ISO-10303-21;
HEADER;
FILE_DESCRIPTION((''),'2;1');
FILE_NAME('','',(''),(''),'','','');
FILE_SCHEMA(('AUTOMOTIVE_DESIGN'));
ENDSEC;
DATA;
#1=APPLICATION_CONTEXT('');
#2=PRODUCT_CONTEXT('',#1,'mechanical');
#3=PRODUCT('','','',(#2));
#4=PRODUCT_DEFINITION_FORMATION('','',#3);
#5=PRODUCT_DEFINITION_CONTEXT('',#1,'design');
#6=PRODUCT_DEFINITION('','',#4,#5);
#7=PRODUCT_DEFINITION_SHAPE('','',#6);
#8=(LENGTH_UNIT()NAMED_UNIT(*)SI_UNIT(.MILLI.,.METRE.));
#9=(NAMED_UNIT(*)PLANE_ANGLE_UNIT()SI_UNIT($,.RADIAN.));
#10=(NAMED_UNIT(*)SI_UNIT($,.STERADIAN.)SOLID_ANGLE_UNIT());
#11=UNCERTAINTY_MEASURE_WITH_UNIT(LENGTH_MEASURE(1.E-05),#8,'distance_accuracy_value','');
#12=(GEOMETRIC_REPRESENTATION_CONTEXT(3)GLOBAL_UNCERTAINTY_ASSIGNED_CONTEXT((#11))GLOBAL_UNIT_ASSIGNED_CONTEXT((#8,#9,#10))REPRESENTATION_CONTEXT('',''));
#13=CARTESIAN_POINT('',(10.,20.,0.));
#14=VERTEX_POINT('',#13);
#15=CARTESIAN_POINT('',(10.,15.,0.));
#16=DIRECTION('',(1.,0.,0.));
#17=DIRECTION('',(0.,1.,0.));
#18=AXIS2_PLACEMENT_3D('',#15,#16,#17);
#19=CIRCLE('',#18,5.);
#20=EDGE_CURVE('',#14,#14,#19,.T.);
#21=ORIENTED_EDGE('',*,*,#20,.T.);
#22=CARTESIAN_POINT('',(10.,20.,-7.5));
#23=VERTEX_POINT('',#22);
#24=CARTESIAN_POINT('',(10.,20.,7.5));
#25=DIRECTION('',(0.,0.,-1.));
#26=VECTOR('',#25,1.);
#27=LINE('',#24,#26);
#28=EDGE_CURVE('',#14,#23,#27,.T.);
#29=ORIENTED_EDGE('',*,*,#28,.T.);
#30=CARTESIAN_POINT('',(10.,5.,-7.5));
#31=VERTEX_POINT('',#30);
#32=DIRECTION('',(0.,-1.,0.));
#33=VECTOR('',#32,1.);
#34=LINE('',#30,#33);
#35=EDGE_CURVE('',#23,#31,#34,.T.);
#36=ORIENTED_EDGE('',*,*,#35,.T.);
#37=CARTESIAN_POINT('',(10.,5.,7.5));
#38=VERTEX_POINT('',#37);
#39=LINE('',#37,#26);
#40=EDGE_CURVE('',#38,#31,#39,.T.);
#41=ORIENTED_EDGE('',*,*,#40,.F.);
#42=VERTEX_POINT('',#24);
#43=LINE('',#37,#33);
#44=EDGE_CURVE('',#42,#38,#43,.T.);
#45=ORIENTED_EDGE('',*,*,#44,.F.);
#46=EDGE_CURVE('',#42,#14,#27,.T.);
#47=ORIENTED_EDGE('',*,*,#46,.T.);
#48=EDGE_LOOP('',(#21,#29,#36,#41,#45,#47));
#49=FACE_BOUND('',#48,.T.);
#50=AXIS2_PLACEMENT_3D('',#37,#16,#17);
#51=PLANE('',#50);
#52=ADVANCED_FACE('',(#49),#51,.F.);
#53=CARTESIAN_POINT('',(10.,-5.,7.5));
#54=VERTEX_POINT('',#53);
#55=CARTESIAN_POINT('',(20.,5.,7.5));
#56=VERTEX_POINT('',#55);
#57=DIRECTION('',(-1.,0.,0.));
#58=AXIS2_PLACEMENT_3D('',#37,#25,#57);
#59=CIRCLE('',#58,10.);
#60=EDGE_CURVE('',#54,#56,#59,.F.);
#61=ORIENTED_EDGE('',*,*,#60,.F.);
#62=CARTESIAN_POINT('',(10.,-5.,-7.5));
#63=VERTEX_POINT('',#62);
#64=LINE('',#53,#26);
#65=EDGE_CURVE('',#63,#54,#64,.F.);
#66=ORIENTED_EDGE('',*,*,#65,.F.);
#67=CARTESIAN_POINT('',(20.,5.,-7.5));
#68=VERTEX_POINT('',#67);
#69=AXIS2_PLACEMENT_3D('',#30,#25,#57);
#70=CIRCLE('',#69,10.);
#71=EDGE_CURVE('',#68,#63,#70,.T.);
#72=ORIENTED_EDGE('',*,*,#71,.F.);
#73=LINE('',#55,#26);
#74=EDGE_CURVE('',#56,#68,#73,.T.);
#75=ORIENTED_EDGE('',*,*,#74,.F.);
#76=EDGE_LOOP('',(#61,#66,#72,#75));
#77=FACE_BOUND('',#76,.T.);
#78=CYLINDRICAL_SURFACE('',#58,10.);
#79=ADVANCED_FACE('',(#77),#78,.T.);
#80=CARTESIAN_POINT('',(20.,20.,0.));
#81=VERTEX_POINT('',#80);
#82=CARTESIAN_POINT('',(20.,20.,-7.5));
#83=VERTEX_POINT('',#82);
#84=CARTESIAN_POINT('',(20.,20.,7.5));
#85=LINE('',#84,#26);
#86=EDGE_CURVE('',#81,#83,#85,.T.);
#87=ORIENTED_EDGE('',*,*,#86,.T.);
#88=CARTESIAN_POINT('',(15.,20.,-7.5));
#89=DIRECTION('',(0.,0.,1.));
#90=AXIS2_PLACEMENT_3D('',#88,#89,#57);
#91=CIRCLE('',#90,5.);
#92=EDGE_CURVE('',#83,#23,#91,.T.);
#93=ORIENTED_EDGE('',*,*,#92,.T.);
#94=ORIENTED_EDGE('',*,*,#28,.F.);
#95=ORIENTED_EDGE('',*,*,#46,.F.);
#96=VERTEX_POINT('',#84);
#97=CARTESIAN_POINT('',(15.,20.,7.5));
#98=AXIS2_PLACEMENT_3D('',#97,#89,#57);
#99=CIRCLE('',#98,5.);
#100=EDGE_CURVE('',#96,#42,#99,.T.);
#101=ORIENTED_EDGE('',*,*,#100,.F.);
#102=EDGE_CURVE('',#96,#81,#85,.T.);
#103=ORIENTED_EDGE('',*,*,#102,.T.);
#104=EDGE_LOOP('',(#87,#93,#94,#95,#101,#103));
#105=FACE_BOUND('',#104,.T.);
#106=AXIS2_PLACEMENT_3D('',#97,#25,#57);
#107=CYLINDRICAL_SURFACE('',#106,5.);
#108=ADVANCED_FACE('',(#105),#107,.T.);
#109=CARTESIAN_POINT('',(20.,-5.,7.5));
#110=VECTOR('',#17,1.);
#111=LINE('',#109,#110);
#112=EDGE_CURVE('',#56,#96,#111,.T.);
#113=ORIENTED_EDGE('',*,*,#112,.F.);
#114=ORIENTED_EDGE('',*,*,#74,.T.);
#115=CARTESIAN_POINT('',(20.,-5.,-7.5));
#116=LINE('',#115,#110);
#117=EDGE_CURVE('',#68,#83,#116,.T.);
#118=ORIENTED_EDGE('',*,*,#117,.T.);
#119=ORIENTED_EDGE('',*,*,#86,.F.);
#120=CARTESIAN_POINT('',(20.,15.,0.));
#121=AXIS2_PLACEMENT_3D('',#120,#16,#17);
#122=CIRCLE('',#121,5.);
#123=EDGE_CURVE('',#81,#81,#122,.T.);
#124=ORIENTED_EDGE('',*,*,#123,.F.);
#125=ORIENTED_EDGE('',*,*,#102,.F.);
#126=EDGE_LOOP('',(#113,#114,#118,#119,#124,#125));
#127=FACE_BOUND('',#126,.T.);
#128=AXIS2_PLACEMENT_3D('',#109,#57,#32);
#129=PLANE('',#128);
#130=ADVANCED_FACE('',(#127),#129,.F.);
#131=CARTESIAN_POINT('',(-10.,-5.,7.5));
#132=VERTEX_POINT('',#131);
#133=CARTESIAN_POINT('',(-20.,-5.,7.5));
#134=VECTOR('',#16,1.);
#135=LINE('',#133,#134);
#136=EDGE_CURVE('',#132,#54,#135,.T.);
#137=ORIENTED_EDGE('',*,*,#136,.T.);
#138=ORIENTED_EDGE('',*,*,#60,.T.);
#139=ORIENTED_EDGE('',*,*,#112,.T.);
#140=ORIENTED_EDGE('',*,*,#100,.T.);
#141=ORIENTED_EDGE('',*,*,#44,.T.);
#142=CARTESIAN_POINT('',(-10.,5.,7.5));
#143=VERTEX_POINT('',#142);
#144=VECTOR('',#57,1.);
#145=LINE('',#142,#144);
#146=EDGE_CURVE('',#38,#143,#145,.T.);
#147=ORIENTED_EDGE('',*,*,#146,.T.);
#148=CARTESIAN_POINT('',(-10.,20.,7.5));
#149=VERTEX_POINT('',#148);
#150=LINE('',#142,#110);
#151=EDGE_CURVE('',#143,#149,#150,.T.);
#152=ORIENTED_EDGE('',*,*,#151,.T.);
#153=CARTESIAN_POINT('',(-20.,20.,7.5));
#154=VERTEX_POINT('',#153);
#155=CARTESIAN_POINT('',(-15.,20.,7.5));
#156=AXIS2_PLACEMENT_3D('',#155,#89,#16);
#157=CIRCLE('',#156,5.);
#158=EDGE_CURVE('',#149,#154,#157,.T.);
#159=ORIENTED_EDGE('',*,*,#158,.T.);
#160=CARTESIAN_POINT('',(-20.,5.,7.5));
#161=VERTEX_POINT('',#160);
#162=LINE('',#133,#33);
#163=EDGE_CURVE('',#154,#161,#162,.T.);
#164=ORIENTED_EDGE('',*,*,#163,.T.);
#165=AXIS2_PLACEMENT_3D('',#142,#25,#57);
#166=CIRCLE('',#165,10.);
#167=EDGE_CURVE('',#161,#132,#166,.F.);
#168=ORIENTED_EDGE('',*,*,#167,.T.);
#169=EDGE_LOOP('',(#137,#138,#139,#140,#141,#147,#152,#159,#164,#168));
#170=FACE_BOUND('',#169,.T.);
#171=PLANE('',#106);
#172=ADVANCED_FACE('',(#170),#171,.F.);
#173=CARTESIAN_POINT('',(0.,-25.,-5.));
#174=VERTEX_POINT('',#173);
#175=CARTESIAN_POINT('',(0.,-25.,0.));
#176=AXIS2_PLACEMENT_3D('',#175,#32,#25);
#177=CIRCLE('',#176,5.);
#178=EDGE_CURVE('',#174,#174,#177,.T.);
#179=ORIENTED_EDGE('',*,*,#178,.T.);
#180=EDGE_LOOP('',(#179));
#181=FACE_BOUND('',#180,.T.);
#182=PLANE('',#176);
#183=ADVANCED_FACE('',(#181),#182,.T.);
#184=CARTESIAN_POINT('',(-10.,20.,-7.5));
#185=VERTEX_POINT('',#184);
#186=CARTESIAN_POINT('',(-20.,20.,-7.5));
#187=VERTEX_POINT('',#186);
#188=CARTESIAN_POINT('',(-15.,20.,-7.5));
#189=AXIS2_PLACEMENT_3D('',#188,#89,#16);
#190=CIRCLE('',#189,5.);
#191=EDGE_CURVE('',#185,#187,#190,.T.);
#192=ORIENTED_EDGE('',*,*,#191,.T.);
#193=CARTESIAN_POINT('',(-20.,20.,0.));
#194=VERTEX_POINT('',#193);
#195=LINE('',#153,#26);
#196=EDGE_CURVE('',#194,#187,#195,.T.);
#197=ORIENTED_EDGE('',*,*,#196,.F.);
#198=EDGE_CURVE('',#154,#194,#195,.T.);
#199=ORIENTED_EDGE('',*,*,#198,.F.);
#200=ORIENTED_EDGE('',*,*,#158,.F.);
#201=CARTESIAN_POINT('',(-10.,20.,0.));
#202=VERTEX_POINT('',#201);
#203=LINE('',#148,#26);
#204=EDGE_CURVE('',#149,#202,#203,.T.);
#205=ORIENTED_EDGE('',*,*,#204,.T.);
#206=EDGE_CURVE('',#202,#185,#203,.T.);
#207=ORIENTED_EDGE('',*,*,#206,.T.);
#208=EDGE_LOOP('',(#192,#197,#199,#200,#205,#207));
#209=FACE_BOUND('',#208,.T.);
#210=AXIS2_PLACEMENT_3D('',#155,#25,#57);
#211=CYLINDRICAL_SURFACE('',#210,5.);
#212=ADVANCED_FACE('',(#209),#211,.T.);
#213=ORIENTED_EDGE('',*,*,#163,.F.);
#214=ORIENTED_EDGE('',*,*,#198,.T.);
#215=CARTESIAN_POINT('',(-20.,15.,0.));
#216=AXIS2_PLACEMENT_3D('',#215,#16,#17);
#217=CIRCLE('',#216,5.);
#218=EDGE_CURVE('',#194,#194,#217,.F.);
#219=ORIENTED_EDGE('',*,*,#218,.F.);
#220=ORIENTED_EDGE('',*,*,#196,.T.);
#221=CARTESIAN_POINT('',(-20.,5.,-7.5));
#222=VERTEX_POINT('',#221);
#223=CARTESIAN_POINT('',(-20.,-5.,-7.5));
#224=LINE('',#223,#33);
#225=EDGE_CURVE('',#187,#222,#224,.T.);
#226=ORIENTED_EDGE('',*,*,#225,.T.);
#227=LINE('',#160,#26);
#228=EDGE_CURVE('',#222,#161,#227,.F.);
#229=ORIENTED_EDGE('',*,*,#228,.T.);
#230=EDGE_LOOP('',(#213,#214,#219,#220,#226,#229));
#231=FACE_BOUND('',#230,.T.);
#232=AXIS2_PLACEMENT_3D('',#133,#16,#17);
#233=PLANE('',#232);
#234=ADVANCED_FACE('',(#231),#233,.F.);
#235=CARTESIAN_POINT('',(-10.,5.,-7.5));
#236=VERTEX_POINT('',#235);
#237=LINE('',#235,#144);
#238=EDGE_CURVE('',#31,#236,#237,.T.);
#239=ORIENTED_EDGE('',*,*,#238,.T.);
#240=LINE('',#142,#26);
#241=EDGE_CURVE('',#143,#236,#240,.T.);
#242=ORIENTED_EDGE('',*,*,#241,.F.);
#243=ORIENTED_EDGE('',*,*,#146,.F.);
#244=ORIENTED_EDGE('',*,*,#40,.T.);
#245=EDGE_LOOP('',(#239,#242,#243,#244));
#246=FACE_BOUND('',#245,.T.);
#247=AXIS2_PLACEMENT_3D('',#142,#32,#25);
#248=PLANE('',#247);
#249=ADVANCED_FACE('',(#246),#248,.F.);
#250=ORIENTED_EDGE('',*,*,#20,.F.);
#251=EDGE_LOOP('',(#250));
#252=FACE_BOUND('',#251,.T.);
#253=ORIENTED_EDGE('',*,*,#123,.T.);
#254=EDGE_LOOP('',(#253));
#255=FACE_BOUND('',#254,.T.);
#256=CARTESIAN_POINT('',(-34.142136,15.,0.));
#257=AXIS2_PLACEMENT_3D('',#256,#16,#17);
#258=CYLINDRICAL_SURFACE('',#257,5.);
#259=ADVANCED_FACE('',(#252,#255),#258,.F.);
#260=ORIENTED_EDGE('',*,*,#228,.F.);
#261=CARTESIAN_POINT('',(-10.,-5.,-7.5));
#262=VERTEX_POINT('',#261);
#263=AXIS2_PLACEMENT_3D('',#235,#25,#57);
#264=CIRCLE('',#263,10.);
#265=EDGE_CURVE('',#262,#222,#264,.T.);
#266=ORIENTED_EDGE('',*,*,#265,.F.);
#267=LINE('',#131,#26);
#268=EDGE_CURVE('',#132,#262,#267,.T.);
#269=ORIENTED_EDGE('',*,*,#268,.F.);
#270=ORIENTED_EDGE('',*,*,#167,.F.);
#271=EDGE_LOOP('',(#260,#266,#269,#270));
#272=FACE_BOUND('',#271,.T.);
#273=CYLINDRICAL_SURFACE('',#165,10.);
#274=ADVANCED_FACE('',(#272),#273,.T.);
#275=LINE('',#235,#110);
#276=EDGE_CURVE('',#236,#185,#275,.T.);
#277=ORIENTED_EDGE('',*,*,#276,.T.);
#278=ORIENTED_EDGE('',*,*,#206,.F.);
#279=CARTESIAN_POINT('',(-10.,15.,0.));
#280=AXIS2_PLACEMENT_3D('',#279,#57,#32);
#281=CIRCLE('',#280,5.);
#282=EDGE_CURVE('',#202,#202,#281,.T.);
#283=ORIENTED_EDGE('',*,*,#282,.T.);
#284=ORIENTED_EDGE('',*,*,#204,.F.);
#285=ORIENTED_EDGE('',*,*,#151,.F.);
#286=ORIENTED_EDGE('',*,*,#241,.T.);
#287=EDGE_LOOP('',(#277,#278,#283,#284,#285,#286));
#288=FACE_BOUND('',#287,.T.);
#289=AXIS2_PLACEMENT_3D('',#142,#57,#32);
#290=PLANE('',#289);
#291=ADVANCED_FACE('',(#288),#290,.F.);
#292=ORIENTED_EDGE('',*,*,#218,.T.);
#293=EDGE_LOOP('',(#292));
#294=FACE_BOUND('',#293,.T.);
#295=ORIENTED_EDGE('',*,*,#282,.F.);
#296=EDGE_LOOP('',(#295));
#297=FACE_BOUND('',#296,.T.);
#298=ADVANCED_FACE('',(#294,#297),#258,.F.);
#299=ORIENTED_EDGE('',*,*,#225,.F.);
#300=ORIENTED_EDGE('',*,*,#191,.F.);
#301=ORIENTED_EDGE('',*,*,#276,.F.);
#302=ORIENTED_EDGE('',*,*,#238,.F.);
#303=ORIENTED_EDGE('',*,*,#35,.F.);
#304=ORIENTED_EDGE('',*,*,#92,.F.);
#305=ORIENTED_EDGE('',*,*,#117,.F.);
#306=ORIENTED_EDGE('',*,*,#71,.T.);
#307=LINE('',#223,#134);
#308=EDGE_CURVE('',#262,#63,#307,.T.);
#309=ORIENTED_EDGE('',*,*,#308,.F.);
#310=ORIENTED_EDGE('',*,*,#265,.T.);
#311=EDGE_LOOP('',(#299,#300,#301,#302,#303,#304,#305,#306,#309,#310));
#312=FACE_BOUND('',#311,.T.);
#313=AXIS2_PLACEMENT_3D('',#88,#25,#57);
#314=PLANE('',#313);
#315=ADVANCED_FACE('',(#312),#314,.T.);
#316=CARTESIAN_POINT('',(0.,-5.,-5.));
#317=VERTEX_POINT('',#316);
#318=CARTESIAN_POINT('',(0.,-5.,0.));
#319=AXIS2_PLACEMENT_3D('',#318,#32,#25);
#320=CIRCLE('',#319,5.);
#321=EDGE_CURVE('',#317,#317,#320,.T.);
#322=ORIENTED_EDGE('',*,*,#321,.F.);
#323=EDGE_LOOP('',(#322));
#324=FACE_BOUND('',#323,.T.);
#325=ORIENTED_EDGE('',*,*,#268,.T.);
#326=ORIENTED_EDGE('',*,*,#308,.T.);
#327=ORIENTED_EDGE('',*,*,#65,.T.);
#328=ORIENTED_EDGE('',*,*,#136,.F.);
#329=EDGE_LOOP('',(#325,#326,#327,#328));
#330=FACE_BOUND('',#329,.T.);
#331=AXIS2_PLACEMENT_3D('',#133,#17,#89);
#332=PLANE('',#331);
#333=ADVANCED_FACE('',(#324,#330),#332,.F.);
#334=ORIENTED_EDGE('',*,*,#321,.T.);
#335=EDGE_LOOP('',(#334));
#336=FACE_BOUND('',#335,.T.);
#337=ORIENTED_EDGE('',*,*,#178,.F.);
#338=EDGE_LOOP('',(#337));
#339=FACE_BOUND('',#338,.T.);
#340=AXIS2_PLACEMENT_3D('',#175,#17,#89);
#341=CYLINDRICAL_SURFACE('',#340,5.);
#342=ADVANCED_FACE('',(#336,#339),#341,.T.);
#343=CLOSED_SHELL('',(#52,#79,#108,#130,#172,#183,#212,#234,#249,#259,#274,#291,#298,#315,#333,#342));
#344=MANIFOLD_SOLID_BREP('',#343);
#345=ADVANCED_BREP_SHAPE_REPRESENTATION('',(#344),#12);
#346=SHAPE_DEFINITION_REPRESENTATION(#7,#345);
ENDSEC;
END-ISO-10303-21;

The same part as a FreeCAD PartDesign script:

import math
import FreeCAD as App
import Part
import Sketcher
Q = App.Units.Quantity


def edges_at(feature, points):
    """Names of the edges that pass closest to the given points."""
    edges = feature.Shape.Edges
    near = lambda p: min(range(len(edges)), key=lambda i: edges[i].distToShape(Part.Vertex(*p))[0])
    return sorted({f"Edge{near(p) + 1}" for p in points})

doc = App.newDocument("Part")
body = doc.addObject("PartDesign::Body", "Body")

# Sketch on XY plane
sketch1 = body.newObject("Sketcher::SketchObject", "Sketch")
sketch1.AttachmentSupport = (doc.getObject("XY_Plane"), [""])
sketch1.MapMode = "FlatFace"
sketch1.addGeometry(Part.LineSegment(App.Vector(10, 20, 0), App.Vector(10, 5, 0)), False)
sketch1.addGeometry(Part.LineSegment(App.Vector(10, 5, 0), App.Vector(-10, 5, 0)), False)
sketch1.addGeometry(Part.LineSegment(App.Vector(-10, 5, 0), App.Vector(-10, 20, 0)), False)
sketch1.addGeometry(Part.ArcOfCircle(Part.Circle(App.Vector(-15, 20, 0), App.Vector(0, 0, 1), 5), math.radians(0), math.radians(180)), False)
sketch1.addGeometry(Part.LineSegment(App.Vector(-20, 20, 0), App.Vector(-20, -5, 0)), False)
sketch1.addGeometry(Part.LineSegment(App.Vector(-20, -5, 0), App.Vector(20, -5, 0)), False)
sketch1.addGeometry(Part.LineSegment(App.Vector(20, -5, 0), App.Vector(20, 20, 0)), False)
sketch1.addGeometry(Part.ArcOfCircle(Part.Circle(App.Vector(15, 20, 0), App.Vector(0, 0, 1), 5), math.radians(0), math.radians(180)), False)
sketch1.addConstraint(Sketcher.Constraint("Coincident", 0, 2, 1, 1))
sketch1.addConstraint(Sketcher.Constraint("Coincident", 1, 2, 2, 1))
sketch1.addConstraint(Sketcher.Constraint("Tangent", 2, 2, 3, 1))
sketch1.addConstraint(Sketcher.Constraint("Tangent", 3, 2, 4, 1))
sketch1.addConstraint(Sketcher.Constraint("Coincident", 4, 2, 5, 1))
sketch1.addConstraint(Sketcher.Constraint("Coincident", 5, 2, 6, 1))
sketch1.addConstraint(Sketcher.Constraint("Tangent", 6, 2, 7, 1))
sketch1.addConstraint(Sketcher.Constraint("Tangent", 7, 2, 0, 1))
sketch1.addConstraint(Sketcher.Constraint("Vertical", 0))
sketch1.addConstraint(Sketcher.Constraint("Horizontal", 1))
sketch1.addConstraint(Sketcher.Constraint("Vertical", 2))
sketch1.addConstraint(Sketcher.Constraint("Vertical", 4))
sketch1.addConstraint(Sketcher.Constraint("Horizontal", 5))
sketch1.addConstraint(Sketcher.Constraint("Vertical", 6))
sketch1.addConstraint(Sketcher.Constraint("Equal", 3, 7))
sketch1.addConstraint(Sketcher.Constraint("Symmetric", 3, 3, 7, 3, -2))
sketch1.addConstraint(Sketcher.Constraint("Radius", 3, Q("5 mm")))
sketch1.addConstraint(Sketcher.Constraint("DistanceX", 1, 2, 1, 1, Q("20 mm")))
sketch1.addConstraint(Sketcher.Constraint("DistanceY", 0, 2, 0, 1, Q("15 mm")))
sketch1.addConstraint(Sketcher.Constraint("DistanceY", 4, 2, 4, 1, Q("25 mm")))
sketch1.addConstraint(Sketcher.Constraint("DistanceY", -1, 1, 3, 3, Q("20 mm")))
pad1 = body.newObject("PartDesign::Pad", "Pad")
pad1.Profile = sketch1
pad1.Length = 15
pad1.Midplane = True

# Sketch on XZ plane
sketch2 = body.newObject("Sketcher::SketchObject", "Sketch001")
sketch2.AttachmentSupport = (doc.getObject("XZ_Plane"), [""])
sketch2.MapMode = "FlatFace"
sketch2.AttachmentOffset = App.Placement(App.Vector(0, 0, 5), App.Rotation())
sketch2.addGeometry(Part.Circle(App.Vector(0, 0, 0), App.Vector(0, 0, 1), 5), False)
sketch2.addConstraint(Sketcher.Constraint("Coincident", 0, 3, -1, 1))
sketch2.addConstraint(Sketcher.Constraint("Diameter", 0, Q("10 mm")))
pad2 = body.newObject("PartDesign::Pad", "Pad001")
pad2.Profile = sketch2
pad2.Length = 20
doc.recompute()

fillet = body.newObject("PartDesign::Fillet", "Fillet")
fillet.Base = (pad2, edges_at(pad2, [(20, -5, 0), (-20, -5, 0)]))
fillet.Radius = 10

# Sketch on YZ plane
sketch3 = body.newObject("Sketcher::SketchObject", "Sketch002")
sketch3.AttachmentSupport = (doc.getObject("YZ_Plane"), [""])
sketch3.MapMode = "FlatFace"
sketch3.AttachmentOffset = App.Placement(App.Vector(0, 0, 20), App.Rotation())
sketch3.addGeometry(Part.Circle(App.Vector(15, 0, 0), App.Vector(0, 0, 1), 5), False)
sketch3.addConstraint(Sketcher.Constraint("PointOnObject", 0, 3, -1))
sketch3.addConstraint(Sketcher.Constraint("Diameter", 0, Q("10 mm")))
sketch3.addConstraint(Sketcher.Constraint("DistanceX", -1, 1, 0, 3, Q("15 mm")))
pocket1 = body.newObject("PartDesign::Pocket", "Pocket")
pocket1.Profile = sketch3
pocket1.Length = 40

doc.recompute()
